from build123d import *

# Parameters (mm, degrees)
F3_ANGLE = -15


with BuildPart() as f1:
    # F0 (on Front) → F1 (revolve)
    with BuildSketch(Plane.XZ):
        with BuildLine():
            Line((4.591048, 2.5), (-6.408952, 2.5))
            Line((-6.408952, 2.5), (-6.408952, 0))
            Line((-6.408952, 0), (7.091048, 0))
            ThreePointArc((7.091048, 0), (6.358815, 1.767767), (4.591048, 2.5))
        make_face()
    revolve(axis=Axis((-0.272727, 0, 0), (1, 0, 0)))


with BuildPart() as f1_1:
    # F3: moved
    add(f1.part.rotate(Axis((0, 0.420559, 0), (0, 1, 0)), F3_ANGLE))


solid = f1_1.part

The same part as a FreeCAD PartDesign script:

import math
import FreeCAD as App
import Part
import Sketcher
from FreeCAD import Vector

doc = App.newDocument("Part")
params = doc.addObject("Spreadsheet::Sheet", "Params")
for row, (alias, value) in enumerate([
    ("sketch1_radius", "2.5 mm"),
    ("sketch1_width", "11 mm"),
    ("revolution_angle", "360 deg"),
], start=1):
    params.set(f"A{row}", alias)
    params.set(f"B{row}", "=" + value)
    params.setAlias(f"B{row}", alias)

body = doc.addObject("PartDesign::Body", "Body")

# Sketch on XZ plane
sketch1 = doc.addObject("Sketcher::SketchObject", "Sketch")
body.addObject(sketch1)
sketch1.AttachmentSupport = (doc.XZ_Plane, [""])
sketch1.MapMode = "FlatFace"
sketch1.addGeometry([
    Part.LineSegment(Vector(4.6, 2.5, 0), Vector(-6.4, 2.5, 0)),
    Part.LineSegment(Vector(-6.4, 2.5, 0), Vector(-6.4, 0, 0)),
    Part.LineSegment(Vector(-6.4, 0, 0), Vector(7.1, 0, 0)),
    Part.ArcOfCircle(Part.Circle(Vector(4.6, 0, 0), Vector(0, 0, 1), 2.5), math.radians(0), math.radians(90)),
], False)
sketch1.addConstraint([
    Sketcher.Constraint("Coincident", 0, 2, 1, 1),
    Sketcher.Constraint("Coincident", 1, 2, 2, 1),
    Sketcher.Constraint("Coincident", 2, 2, 3, 1),
    Sketcher.Constraint("Tangent", 3, 2, 0, 1),
    Sketcher.Constraint("Horizontal", 0),
    Sketcher.Constraint("Vertical", 1),
    Sketcher.Constraint("Horizontal", 2),
    Sketcher.Constraint("PointOnObject", 3, 3, -1),
    Sketcher.Constraint("PointOnObject", 1, 2, -1),
    Sketcher.Constraint("Radius", 3, 2.5),
    Sketcher.Constraint("DistanceX", 0, 2, 0, 1, 11.0),
    Sketcher.Constraint("DistanceX", -1, 1, 3, 3, 4.591048),
])
sketch1.setExpression("Constraints[9]", "Params.sketch1_radius")
sketch1.setExpression("Constraints[10]", "Params.sketch1_width")
revolution = doc.addObject("PartDesign::Revolution", "Revolution")
body.addObject(revolution)
revolution.Profile = sketch1
revolution.ReferenceAxis = (sketch1, ["H_Axis"])
revolution.setExpression("Angle", "Params.revolution_angle")
body2 = doc.addObject("PartDesign::Body", "Body001")
doc.recompute()

body.Placement = App.Placement(Vector(0, 0, 0), App.Rotation(Vector(0, 1, 0), 345))
boolean = doc.addObject("PartDesign::Boolean", "Boolean")
body2.addObject(boolean)
boolean.Type = "Fuse"
boolean.addObjects([body])

doc.recompute()
